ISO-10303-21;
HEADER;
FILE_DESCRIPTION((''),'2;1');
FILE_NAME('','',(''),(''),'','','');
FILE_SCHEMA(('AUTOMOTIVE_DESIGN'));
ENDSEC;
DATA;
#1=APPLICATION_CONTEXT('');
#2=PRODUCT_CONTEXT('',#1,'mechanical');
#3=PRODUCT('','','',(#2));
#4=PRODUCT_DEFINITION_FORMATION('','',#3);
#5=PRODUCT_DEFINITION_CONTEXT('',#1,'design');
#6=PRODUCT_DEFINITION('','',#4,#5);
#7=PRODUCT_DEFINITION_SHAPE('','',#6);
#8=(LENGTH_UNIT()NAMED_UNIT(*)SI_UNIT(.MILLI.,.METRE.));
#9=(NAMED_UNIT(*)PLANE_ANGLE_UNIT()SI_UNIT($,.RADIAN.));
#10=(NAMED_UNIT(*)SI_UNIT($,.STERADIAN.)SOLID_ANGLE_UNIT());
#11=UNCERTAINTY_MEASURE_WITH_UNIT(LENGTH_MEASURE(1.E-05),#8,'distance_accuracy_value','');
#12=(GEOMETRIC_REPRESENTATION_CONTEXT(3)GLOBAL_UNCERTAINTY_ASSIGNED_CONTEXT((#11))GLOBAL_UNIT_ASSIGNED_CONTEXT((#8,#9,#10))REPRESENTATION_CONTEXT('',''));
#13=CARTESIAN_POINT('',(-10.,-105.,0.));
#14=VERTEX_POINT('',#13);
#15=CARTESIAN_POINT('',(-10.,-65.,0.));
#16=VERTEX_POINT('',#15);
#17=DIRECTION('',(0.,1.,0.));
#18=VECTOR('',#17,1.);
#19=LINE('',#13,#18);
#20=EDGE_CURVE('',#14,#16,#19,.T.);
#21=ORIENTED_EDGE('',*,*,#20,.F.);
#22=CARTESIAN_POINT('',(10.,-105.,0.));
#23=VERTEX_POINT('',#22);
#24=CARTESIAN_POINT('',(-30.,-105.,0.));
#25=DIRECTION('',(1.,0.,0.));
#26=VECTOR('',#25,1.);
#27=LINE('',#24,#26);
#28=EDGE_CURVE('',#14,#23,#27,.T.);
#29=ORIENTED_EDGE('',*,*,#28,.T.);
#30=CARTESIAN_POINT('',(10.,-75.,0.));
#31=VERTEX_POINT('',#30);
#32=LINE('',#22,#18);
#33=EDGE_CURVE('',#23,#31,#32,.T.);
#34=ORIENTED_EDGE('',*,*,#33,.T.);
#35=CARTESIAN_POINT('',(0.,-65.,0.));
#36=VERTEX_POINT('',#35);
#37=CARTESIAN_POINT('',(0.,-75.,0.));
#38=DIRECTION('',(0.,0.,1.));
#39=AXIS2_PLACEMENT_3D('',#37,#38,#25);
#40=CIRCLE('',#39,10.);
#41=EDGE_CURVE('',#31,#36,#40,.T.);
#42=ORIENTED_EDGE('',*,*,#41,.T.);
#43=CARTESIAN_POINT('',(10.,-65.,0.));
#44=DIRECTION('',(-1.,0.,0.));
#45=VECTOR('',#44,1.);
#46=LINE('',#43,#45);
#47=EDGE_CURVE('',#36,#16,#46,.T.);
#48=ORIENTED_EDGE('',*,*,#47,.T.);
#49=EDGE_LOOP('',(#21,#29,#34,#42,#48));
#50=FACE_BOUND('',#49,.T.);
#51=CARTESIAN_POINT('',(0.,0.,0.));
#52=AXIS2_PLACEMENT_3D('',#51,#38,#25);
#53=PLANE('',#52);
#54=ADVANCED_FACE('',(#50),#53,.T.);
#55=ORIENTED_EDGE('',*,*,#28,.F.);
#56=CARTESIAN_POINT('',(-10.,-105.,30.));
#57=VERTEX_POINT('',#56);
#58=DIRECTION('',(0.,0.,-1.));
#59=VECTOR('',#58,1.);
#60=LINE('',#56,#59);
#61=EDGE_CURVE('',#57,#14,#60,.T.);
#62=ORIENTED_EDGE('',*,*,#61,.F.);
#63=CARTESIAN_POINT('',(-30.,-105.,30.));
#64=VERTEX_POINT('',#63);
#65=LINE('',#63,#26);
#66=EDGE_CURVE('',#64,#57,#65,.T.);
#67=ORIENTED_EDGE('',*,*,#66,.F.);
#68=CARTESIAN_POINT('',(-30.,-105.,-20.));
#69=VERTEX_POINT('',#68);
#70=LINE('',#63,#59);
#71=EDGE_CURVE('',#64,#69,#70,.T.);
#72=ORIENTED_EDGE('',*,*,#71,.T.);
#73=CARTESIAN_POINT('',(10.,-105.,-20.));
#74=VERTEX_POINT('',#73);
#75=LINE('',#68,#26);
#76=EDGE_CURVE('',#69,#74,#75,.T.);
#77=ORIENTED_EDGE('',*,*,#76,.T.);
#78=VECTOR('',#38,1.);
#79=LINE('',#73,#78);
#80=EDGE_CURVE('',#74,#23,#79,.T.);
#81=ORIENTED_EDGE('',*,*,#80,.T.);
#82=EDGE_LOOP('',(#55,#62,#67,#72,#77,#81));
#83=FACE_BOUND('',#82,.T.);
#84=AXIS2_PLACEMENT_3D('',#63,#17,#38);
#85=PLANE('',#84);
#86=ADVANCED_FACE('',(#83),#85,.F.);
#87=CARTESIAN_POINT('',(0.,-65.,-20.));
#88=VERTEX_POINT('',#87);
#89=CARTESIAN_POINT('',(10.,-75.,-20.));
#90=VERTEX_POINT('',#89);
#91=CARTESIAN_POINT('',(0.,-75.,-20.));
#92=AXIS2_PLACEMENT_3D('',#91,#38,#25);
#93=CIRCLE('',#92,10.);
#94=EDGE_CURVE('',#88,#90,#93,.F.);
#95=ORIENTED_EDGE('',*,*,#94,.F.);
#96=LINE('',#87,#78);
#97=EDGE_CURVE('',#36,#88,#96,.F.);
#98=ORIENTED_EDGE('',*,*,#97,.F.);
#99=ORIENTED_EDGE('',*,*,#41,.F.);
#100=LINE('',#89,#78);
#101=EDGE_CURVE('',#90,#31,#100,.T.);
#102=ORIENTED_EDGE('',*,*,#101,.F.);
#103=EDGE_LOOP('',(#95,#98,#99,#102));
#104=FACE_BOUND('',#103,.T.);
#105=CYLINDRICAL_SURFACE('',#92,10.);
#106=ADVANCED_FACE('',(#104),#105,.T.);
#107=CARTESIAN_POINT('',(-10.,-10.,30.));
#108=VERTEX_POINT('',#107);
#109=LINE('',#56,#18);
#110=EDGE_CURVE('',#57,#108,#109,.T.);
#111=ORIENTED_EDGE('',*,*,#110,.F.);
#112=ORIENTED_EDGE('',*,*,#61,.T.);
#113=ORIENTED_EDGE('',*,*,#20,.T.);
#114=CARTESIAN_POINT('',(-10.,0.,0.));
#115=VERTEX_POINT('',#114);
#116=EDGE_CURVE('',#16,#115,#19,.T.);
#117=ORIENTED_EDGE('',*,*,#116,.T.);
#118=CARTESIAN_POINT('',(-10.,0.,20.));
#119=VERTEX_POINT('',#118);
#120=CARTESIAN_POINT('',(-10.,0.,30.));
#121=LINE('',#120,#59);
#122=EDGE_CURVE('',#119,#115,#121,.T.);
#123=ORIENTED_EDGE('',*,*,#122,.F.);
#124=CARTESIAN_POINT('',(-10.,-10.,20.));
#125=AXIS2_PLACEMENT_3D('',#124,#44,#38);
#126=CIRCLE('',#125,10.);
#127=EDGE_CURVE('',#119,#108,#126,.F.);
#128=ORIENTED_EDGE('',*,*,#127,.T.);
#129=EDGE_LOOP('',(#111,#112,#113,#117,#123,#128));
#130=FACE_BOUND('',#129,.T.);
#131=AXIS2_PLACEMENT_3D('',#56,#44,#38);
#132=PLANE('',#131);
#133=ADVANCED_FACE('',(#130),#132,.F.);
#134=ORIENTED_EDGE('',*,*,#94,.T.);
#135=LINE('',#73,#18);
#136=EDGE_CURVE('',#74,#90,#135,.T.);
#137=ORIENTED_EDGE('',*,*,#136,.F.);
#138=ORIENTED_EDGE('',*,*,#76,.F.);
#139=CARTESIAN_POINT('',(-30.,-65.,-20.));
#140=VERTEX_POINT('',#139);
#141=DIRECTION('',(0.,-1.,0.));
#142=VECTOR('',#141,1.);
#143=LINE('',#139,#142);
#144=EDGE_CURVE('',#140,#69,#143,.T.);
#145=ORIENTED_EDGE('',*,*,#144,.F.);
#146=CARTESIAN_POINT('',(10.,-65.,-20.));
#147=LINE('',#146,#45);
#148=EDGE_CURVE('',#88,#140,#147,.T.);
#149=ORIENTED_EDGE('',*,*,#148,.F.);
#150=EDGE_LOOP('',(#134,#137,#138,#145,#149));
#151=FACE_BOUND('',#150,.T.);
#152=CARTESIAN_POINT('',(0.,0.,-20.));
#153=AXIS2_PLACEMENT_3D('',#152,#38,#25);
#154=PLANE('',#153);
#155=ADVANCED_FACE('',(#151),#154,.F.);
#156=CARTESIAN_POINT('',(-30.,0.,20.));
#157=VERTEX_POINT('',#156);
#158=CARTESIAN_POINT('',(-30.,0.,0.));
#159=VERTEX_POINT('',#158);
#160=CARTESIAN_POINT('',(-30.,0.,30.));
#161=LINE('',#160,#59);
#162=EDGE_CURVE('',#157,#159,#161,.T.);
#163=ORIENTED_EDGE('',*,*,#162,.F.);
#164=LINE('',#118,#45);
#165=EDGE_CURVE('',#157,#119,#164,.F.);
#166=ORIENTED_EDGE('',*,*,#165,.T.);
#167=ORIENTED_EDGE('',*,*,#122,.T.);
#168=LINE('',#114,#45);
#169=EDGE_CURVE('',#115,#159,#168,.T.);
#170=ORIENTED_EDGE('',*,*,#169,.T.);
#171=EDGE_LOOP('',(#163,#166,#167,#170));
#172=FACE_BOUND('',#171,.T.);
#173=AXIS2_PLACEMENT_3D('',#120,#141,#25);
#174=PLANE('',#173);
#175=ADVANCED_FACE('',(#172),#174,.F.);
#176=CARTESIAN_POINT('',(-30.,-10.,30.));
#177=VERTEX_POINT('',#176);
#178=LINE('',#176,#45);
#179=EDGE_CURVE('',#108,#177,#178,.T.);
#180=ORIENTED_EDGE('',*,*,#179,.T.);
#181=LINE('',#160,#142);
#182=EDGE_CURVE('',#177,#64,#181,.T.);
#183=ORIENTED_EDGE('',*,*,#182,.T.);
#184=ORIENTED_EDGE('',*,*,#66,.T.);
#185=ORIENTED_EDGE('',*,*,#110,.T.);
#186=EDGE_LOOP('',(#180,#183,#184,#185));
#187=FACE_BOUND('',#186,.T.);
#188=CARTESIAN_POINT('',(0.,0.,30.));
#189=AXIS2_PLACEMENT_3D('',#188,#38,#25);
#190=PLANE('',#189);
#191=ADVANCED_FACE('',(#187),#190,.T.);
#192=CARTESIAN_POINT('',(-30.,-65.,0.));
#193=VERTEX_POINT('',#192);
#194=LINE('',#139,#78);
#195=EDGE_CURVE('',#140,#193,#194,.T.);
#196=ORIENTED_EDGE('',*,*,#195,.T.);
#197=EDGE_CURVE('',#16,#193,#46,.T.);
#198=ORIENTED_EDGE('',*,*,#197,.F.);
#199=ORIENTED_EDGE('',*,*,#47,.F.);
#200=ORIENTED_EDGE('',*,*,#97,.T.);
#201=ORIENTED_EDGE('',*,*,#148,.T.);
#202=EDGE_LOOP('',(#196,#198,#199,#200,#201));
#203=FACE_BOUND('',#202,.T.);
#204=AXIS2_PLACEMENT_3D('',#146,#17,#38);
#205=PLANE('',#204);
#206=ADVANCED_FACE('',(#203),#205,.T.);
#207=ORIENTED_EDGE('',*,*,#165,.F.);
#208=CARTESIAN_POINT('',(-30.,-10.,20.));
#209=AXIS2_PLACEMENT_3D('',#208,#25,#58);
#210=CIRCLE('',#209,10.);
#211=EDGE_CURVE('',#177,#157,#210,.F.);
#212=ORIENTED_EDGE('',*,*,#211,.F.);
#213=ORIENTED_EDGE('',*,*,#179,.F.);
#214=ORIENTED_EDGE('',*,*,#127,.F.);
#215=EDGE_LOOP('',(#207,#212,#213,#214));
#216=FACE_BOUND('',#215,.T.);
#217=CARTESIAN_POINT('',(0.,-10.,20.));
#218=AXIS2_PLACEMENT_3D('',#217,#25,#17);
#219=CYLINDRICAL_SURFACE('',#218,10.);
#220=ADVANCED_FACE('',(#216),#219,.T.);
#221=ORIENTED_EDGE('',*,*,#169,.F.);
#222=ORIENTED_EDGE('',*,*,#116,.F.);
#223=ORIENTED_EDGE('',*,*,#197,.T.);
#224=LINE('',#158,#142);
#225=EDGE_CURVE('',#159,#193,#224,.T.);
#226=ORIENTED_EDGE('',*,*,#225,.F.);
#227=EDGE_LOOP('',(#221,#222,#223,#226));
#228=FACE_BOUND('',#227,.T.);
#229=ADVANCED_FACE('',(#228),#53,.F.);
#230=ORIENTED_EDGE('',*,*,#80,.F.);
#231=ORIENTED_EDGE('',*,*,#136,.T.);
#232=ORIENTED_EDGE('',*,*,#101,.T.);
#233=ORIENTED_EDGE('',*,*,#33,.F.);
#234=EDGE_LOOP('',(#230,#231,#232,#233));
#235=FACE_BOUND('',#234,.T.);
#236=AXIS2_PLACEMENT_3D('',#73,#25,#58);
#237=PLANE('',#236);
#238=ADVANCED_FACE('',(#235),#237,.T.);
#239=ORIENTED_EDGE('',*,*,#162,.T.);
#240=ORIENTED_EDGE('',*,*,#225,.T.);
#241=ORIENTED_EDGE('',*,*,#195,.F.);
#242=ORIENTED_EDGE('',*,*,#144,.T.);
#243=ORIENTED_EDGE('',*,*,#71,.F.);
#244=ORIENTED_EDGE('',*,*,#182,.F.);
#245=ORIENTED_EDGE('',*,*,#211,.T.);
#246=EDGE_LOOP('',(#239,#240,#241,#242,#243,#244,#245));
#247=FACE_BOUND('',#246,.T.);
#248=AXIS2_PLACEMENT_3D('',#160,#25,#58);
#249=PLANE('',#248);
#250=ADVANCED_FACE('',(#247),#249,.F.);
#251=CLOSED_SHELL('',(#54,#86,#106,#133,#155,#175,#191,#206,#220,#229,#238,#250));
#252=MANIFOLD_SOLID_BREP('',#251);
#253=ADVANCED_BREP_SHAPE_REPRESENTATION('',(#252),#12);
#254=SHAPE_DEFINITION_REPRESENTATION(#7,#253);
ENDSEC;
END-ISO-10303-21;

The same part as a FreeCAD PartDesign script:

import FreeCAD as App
import Part
import Sketcher

V = App.Vector


def edges_at(feature, points):
    """Names of the edges that pass closest to the given points."""
    edges = feature.Shape.Edges
    near = lambda p: min(range(len(edges)), key=lambda i: edges[i].distToShape(Part.Vertex(*p))[0])
    return sorted({f"Edge{near(p) + 1}" for p in points})


def add_polygon(sketch, points):
    """Adds a closed chain of lines whose ends are joined by coincident constraints."""
    first, n = sketch.GeometryCount, len(points)
    for a, b in zip(points, points[1:] + points[:1]):
        sketch.addGeometry(Part.LineSegment(App.Vector(*a, 0), App.Vector(*b, 0)), False)
    for i in range(n):
        sketch.addConstraint(Sketcher.Constraint("Coincident", first + i, 2, first + (i + 1) % n, 1))

doc = App.newDocument("Part")
body = doc.addObject("PartDesign::Body", "Body")

sketch1 = body.newObject("Sketcher::SketchObject", "Sketch")
sketch1.AttachmentSupport = (doc.getObject("XY_Plane"), [""])
sketch1.MapMode = "FlatFace"
add_polygon(sketch1, [(-30, 0), (-30, -105), (-10, -105), (-10, 0)])
sketch1.addConstraint([
    Sketcher.Constraint("Vertical", 0),
    Sketcher.Constraint("Horizontal", 1),
    Sketcher.Constraint("Vertical", 2),
    Sketcher.Constraint("Horizontal", 3),
    Sketcher.Constraint("PointOnObject", 2, 2, -1),
    Sketcher.Constraint("DistanceX", 1, 1, 1, 2, 20.0),
    Sketcher.Constraint("DistanceY", 0, 2, 0, 1, 105.0),
    Sketcher.Constraint("DistanceX", 0, 2, -1, 1, 30.0),
])
pad1 = body.newObject("PartDesign::Pad", "Pad")
pad1.Profile = sketch1
pad1.Length = 30

sketch2 = body.newObject("Sketcher::SketchObject", "Sketch001")
sketch2.AttachmentSupport = (doc.getObject("XY_Plane"), [""])
sketch2.MapMode = "FlatFace"
add_polygon(sketch2, [(-30, -65), (-30, -105), (10, -105), (10, -65)])
sketch2.addConstraint([
    Sketcher.Constraint("Vertical", 0),
    Sketcher.Constraint("Horizontal", 1),
    Sketcher.Constraint("Vertical", 2),
    Sketcher.Constraint("Horizontal", 3),
    Sketcher.Constraint("Equal", 3, 0),
    Sketcher.Constraint("DistanceX", 1, 1, 1, 2, 40.0),
    Sketcher.Constraint("DistanceX", 0, 2, -1, 1, 30.0),
    Sketcher.Constraint("DistanceY", 0, 2, -1, 1, 105.0),
])
pad2 = body.newObject("PartDesign::Pad", "Pad001")
pad2.Profile = sketch2
pad2.Length = 20
pad2.Reversed = True
doc.recompute()

fillet = body.newObject("PartDesign::Fillet", "Fillet")
fillet.Base = (pad2, edges_at(pad2, [(10, -65, -10), (-20, 0, 30)]))
fillet.Radius = 10

doc.recompute()
